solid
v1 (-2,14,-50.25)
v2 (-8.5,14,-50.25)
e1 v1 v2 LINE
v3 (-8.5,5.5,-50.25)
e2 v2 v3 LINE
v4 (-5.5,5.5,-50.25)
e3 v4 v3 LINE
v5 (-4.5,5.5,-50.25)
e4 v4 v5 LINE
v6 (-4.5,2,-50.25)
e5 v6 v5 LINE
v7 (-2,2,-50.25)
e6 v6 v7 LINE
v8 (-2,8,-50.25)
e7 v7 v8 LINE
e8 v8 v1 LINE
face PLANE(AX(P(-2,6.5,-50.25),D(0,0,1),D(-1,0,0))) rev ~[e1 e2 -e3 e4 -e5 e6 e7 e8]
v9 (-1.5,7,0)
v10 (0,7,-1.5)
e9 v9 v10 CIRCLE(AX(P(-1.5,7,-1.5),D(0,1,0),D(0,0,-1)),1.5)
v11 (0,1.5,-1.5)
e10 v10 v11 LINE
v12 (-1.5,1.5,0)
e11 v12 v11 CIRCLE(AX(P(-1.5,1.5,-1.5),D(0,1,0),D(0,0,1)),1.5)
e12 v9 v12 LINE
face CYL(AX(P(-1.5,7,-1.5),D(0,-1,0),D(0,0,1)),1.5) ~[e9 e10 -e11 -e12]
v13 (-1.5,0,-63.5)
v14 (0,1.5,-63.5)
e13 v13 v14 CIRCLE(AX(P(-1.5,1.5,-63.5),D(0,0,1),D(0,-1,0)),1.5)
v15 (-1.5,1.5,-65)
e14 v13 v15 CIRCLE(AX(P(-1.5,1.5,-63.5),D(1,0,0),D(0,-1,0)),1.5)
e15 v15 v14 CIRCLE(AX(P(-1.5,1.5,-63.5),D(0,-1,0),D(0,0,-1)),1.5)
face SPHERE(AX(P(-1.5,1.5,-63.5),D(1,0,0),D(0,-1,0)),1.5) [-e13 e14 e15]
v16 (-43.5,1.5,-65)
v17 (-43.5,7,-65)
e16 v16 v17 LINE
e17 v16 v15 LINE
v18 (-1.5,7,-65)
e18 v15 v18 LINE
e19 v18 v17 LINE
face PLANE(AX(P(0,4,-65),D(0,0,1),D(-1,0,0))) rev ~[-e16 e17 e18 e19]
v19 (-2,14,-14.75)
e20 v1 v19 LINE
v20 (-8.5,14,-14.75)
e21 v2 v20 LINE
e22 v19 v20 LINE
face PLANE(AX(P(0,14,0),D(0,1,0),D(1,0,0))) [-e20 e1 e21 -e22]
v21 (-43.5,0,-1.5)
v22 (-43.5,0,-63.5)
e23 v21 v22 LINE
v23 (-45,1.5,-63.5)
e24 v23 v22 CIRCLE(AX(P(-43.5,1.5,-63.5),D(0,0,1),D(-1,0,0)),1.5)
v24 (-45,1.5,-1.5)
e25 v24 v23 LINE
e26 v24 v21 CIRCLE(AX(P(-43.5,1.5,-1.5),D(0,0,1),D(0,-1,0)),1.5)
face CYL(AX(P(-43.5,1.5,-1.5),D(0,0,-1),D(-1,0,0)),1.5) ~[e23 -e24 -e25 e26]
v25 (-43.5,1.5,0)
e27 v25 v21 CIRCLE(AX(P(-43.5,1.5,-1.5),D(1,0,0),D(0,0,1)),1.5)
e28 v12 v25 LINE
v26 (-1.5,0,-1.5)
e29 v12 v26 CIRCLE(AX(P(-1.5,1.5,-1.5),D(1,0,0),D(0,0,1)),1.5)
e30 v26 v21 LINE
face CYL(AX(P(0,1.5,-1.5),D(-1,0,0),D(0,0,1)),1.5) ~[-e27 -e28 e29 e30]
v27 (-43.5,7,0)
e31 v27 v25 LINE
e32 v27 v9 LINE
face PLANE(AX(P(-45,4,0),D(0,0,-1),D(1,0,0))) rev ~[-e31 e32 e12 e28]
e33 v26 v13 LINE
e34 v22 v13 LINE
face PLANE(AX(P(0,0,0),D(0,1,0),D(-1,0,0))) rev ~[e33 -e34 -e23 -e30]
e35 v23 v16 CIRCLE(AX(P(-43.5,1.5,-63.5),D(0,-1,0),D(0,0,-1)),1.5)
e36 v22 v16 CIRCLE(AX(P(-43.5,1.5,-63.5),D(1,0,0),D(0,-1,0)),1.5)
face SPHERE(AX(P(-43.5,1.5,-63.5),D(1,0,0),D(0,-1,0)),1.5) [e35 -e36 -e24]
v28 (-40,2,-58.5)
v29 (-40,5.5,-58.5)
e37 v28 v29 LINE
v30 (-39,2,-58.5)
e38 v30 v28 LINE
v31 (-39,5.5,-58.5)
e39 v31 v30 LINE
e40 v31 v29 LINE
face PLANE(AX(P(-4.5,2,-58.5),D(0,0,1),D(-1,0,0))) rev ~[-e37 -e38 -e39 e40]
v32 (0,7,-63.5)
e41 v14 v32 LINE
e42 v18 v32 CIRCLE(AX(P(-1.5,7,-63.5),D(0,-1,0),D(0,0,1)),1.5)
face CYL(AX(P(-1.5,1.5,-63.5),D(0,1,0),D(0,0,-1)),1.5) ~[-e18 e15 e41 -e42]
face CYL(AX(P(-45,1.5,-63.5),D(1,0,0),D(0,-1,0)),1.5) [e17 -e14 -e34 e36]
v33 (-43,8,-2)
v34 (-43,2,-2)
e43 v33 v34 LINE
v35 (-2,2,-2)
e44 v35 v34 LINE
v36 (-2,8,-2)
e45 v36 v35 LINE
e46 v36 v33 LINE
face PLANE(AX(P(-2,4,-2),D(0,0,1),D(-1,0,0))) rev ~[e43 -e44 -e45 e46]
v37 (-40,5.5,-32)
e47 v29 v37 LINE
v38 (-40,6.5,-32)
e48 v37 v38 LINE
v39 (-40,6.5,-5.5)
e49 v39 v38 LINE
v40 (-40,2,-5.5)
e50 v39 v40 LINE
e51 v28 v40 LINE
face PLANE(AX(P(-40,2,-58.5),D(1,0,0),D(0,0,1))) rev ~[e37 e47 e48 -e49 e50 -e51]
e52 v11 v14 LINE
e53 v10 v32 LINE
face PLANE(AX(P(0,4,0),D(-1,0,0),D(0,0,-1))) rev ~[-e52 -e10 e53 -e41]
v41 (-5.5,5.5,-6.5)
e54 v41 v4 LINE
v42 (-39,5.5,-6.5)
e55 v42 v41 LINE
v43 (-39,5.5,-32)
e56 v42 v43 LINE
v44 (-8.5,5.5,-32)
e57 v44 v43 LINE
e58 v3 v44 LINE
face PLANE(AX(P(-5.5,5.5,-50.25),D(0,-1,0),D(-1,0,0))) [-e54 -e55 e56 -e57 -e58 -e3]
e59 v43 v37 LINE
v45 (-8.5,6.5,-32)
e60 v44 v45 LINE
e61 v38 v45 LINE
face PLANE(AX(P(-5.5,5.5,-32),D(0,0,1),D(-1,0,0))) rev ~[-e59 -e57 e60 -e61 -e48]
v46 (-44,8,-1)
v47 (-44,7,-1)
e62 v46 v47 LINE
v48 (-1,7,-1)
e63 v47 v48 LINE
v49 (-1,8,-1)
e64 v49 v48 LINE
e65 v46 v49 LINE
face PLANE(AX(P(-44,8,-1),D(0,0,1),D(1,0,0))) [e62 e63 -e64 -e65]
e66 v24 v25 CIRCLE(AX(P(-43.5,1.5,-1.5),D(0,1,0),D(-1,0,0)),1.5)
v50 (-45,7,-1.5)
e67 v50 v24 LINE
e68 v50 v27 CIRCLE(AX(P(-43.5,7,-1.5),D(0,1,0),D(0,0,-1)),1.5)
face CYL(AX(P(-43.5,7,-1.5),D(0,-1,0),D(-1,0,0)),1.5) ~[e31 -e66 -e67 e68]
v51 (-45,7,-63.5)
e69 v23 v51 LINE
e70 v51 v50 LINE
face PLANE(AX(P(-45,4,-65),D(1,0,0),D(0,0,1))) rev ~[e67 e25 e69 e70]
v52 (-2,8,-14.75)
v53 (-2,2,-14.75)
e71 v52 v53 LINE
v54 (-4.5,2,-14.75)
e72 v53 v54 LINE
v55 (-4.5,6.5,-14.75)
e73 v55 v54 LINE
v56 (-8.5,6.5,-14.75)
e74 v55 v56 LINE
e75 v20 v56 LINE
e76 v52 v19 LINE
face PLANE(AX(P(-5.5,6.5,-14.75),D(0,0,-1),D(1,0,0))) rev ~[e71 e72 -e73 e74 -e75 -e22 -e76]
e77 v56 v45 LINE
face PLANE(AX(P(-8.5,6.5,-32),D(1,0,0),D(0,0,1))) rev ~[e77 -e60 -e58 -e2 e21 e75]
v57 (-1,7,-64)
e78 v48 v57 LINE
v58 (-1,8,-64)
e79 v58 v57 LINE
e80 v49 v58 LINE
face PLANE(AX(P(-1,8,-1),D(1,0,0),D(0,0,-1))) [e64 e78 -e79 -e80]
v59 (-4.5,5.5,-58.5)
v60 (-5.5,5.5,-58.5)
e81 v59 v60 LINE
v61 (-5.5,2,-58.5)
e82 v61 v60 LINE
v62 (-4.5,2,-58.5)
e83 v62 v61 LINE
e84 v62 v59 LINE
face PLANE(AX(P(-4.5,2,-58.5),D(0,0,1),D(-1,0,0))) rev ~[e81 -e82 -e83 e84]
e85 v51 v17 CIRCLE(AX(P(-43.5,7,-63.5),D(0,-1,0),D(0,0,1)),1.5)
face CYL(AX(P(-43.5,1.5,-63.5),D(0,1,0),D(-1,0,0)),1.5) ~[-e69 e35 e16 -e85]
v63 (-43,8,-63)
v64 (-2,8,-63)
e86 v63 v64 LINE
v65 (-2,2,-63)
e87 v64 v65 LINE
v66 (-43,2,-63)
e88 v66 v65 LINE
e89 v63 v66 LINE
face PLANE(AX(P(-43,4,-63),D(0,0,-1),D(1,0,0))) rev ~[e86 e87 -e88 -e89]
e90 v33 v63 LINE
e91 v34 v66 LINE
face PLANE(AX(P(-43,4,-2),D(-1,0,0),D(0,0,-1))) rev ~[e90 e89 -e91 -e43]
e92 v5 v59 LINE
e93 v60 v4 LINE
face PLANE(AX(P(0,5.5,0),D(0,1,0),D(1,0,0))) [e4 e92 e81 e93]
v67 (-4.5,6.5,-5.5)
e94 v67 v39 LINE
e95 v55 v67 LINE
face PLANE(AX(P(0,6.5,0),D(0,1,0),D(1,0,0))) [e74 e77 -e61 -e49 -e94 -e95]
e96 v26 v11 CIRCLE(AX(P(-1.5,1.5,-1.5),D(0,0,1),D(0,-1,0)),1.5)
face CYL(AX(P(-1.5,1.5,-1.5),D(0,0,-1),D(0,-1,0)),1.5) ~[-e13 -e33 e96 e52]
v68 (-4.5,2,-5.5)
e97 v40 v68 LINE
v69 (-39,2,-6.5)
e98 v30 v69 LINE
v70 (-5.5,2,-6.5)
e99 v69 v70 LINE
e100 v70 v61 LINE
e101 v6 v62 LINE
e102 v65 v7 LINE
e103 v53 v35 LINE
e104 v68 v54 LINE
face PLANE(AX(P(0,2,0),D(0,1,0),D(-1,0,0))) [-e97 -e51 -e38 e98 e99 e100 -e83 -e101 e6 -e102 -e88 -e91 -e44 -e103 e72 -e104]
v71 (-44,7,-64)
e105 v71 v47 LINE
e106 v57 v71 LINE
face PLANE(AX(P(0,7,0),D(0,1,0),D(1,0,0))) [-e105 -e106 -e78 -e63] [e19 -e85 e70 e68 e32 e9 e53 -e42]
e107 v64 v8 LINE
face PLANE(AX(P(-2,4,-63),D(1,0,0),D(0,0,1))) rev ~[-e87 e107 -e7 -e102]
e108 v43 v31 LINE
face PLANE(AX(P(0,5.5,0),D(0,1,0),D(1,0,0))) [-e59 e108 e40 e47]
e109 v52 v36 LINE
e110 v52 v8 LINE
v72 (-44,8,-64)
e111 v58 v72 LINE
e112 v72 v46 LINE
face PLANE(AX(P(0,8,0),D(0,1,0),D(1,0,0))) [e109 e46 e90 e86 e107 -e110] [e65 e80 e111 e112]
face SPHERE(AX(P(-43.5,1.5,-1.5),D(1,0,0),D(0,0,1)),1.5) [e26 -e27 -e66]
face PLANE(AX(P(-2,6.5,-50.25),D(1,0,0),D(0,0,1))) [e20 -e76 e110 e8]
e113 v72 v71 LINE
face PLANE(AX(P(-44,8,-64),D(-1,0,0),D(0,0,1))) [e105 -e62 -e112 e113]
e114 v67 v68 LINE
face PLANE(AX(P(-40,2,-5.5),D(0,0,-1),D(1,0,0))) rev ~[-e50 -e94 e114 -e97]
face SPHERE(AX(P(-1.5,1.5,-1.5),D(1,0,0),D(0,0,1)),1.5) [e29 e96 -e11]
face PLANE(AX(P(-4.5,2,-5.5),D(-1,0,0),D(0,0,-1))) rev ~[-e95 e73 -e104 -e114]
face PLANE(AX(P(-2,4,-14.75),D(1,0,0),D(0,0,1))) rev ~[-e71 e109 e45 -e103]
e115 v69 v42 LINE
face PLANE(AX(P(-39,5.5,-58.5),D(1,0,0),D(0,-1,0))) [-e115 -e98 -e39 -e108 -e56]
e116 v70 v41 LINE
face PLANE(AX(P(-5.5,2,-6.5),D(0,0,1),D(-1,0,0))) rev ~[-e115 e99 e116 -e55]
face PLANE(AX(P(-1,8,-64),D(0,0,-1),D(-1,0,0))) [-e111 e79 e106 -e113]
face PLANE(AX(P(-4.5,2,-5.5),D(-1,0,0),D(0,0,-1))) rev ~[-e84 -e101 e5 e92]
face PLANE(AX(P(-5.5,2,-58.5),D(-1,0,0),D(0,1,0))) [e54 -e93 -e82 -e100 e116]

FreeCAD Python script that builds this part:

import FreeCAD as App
import Part
import Sketcher

V = App.Vector
Q = App.Units.Quantity


def edges_at(feature, points):
    """Names of the edges that pass closest to the given points."""
    edges = feature.Shape.Edges
    near = lambda p: min(range(len(edges)), key=lambda i: edges[i].distToShape(Part.Vertex(*p))[0])
    return sorted({f"Edge{near(p) + 1}" for p in points})

doc = App.newDocument("Part")
params = doc.addObject("Spreadsheet::Sheet", "Params")
for row, (alias, value) in enumerate([
    ("sketch1_width", "45 mm"),
    ("sketch1_height", "65 mm"),
    ("pad1_length", "2 mm"),
    ("sketch2_width", "45 mm"),
    ("sketch2_height", "65 mm"),
    ("pad2_length", "2 mm"),
    ("sketch3_height", "51 mm"),
    ("sketch3_width", "33.5 mm"),
    ("pad3_length", "3.5 mm"),
    ("sketch4_width", "33.5 mm"),
    ("sketch4_height", "3.5 mm"),
    ("pocket1_length", "2 mm"),
    ("sketch5_width", "35.5 mm"),
    ("sketch5_height", "26.5 mm"),
    ("pad4_length", "1 mm"),
    ("fillet_radius", "1.5 mm"),
    ("fillet2_radius", "1.5 mm"),
    ("sketch6_width", "6.5 mm"),
    ("sketch6_height", "35.5 mm"),
    ("pad5_length", "15 mm"),
    ("sketch7_width", "1 mm"),
    ("sketch7_height", "35.5 mm"),
    ("sketch8_width", "3 mm"),
    ("sketch8_height", "3.5 mm"),
    ("pocket3_length", "43.75 mm"),
    ("sketch9_width", "45 mm"),
    ("sketch9_width2", "41 mm"),
    ("sketch9_height", "65 mm"),
    ("sketch9_height2", "61 mm"),
    ("pad6_length", "4 mm"),
    ("sketch10_width", "45 mm"),
    ("sketch10_height", "65 mm"),
    ("pocket4_length", "1 mm"),
    ("fillet3_radius", "1.5 mm"),
    ("fillet4_radius", "1.5 mm"),
], start=1):
    params.set(f"A{row}", alias)
    params.set(f"B{row}", "=" + value)
    params.setAlias(f"B{row}", alias)

body = doc.addObject("PartDesign::Body", "Body")

sketch1 = body.newObject("Sketcher::SketchObject", "Sketch")
sketch1.AttachmentSupport = (doc.getObject("XZ_Plane"), [""])
sketch1.MapMode = "FlatFace"
sketch1.addGeometry([
    Part.LineSegment(V(-45, 0, 0), V(0, 0, 0)),
    Part.LineSegment(V(0, 0, 0), V(0, -65, 0)),
    Part.LineSegment(V(0, -65, 0), V(-45, -65, 0)),
    Part.LineSegment(V(-45, -65, 0), V(-45, 0, 0)),
], False)
sketch1.addConstraint([
    Sketcher.Constraint("Coincident", 0, 2, 1, 1),
    Sketcher.Constraint("Coincident", 1, 2, 2, 1),
    Sketcher.Constraint("Coincident", 2, 2, 3, 1),
    Sketcher.Constraint("Coincident", 3, 2, 0, 1),
    Sketcher.Constraint("Horizontal", 0),
    Sketcher.Constraint("Vertical", 1),
    Sketcher.Constraint("Horizontal", 2),
    Sketcher.Constraint("Vertical", 3),
    Sketcher.Constraint("Coincident", 0, 2, -1, 1),
    Sketcher.Constraint("DistanceX", 0, 1, 0, 2, Q("45 mm")),
    Sketcher.Constraint("DistanceY", 1, 2, 1, 1, Q("65 mm")),
])
sketch1.setExpression("Constraints[9]", "Params.sketch1_width")
sketch1.setExpression("Constraints[10]", "Params.sketch1_height")
pad1 = body.newObject("PartDesign::Pad", "Pad")
pad1.Profile = sketch1
pad1.setExpression("Length", "Params.pad1_length")
pad1.Reversed = True

sketch2 = body.newObject("Sketcher::SketchObject", "Sketch001")
sketch2.AttachmentSupport = (doc.getObject("XZ_Plane"), [""])
sketch2.MapMode = "FlatFace"
sketch2.AttachmentOffset = App.Placement(V(0, 0, -2), App.Rotation())
sketch2.addGeometry([
    Part.LineSegment(V(0, 0, 0), V(0, -65, 0)),
    Part.LineSegment(V(0, -65, 0), V(-45, -65, 0)),
    Part.LineSegment(V(-45, -65, 0), V(-45, 0, 0)),
    Part.LineSegment(V(-45, 0, 0), V(0, 0, 0)),
    Part.LineSegment(V(-2, -63, 0), V(-2, -2, 0)),
    Part.LineSegment(V(-2, -2, 0), V(-43, -2, 0)),
    Part.LineSegment(V(-43, -2, 0), V(-43, -63, 0)),
    Part.LineSegment(V(-43, -63, 0), V(-2, -63, 0)),
], False)
sketch2.addConstraint([
    Sketcher.Constraint("Coincident", 0, 2, 1, 1),
    Sketcher.Constraint("Coincident", 1, 2, 2, 1),
    Sketcher.Constraint("Coincident", 2, 2, 3, 1),
    Sketcher.Constraint("Coincident", 3, 2, 0, 1),
    Sketcher.Constraint("Coincident", 4, 2, 5, 1),
    Sketcher.Constraint("Coincident", 5, 2, 6, 1),
    Sketcher.Constraint("Coincident", 6, 2, 7, 1),
    Sketcher.Constraint("Coincident", 7, 2, 4, 1),
    Sketcher.Constraint("Vertical", 0),
    Sketcher.Constraint("Horizontal", 1),
    Sketcher.Constraint("Vertical", 2),
    Sketcher.Constraint("Horizontal", 3),
    Sketcher.Constraint("Vertical", 4),
    Sketcher.Constraint("Horizontal", 5),
    Sketcher.Constraint("Vertical", 6),
    Sketcher.Constraint("Horizontal", 7),
    Sketcher.Constraint("Coincident", 3, 2, -1, 1),
    Sketcher.Constraint("DistanceX", 4, 2, -1, 1, Q("2 mm")),
    Sketcher.Constraint("DistanceY", 4, 2, -1, 1, Q("2 mm")),
    Sketcher.Constraint("DistanceX", 2, 2, 5, 2, Q("2 mm")),
    Sketcher.Constraint("DistanceY", 1, 2, 6, 2, Q("2 mm")),
    Sketcher.Constraint("DistanceX", 1, 2, 1, 1, Q("45 mm")),
    Sketcher.Constraint("DistanceY", 0, 2, 0, 1, Q("65 mm")),
])
sketch2.setExpression("Constraints[21]", "Params.sketch2_width")
sketch2.setExpression("Constraints[22]", "Params.sketch2_height")
pad2 = body.newObject("PartDesign::Pad", "Pad001")
pad2.Profile = sketch2
pad2.setExpression("Length", "Params.pad2_length")
pad2.Reversed = True

sketch3 = body.newObject("Sketcher::SketchObject", "Sketch002")
sketch3.AttachmentSupport = (doc.getObject("XZ_Plane"), [""])
sketch3.MapMode = "FlatFace"
sketch3.AttachmentOffset = App.Placement(V(0, 0, -2), App.Rotation())
sketch3.addGeometry([
    Part.LineSegment(V(-4, -6, 0), V(-4, -58, 0)),
    Part.LineSegment(V(-4, -58, 0), V(-40, -58, 0)),
    Part.LineSegment(V(-40, -58, 0), V(-40, -6, 0)),
    Part.LineSegment(V(-40, -6, 0), V(-4, -6, 0)),
    Part.LineSegment(V(-6, -58, 0), V(-6, -6, 0)),
    Part.LineSegment(V(-6, -6, 0), V(-39, -6, 0)),
    Part.LineSegment(V(-39, -6, 0), V(-39, -58, 0)),
    Part.LineSegment(V(-39, -58, 0), V(-6, -58, 0)),
], False)
sketch3.addConstraint([
    Sketcher.Constraint("Coincident", 0, 2, 1, 1),
    Sketcher.Constraint("Coincident", 1, 2, 2, 1),
    Sketcher.Constraint("Coincident", 2, 2, 3, 1),
    Sketcher.Constraint("Coincident", 3, 2, 0, 1),
    Sketcher.Constraint("Coincident", 4, 2, 5, 1),
    Sketcher.Constraint("Coincident", 5, 2, 6, 1),
    Sketcher.Constraint("Coincident", 6, 2, 7, 1),
    Sketcher.Constraint("Coincident", 7, 2, 4, 1),
    Sketcher.Constraint("Vertical", 0),
    Sketcher.Constraint("Horizontal", 1),
    Sketcher.Constraint("Vertical", 2),
    Sketcher.Constraint("Horizontal", 3),
    Sketcher.Constraint("Vertical", 4),
    Sketcher.Constraint("Horizontal", 5),
    Sketcher.Constraint("Vertical", 6),
    Sketcher.Constraint("Horizontal", 7),
    Sketcher.Constraint("DistanceY", 4, 1, 4, 2, Q("51 mm")),
    Sketcher.Constraint("DistanceX", 5, 2, 5, 1, Q("33.5 mm")),
    Sketcher.Constraint("DistanceX", 4, 2, 3, 2, Q("1 mm")),
    Sketcher.Constraint("DistanceY", 4, 2, 3, 2, Q("1 mm")),
    Sketcher.Constraint("DistanceX", 2, 2, 5, 2, Q("1 mm")),
    Sketcher.Constraint("DistanceY", 1, 2, 6, 2, Q("1 mm")),
    Sketcher.Constraint("DistanceX", 1, 2, -1, 1, Q("40 mm")),
    Sketcher.Constraint("DistanceY", 0, 2, -1, 1, Q("58.5 mm")),
])
sketch3.setExpression("Constraints[16]", "Params.sketch3_height")
sketch3.setExpression("Constraints[17]", "Params.sketch3_width")
pad3 = body.newObject("PartDesign::Pad", "Pad002")
pad3.Profile = sketch3
pad3.setExpression("Length", "Params.pad3_length")
pad3.Reversed = True

sketch4 = body.newObject("Sketcher::SketchObject", "Sketch003")
sketch4.AttachmentSupport = (doc.getObject("XY_Plane"), [""])
sketch4.MapMode = "FlatFace"
sketch4.AttachmentOffset = App.Placement(V(0, 0, -58.5), App.Rotation())
sketch4.addGeometry([
    Part.LineSegment(V(-5.5, 2, 0), V(-39, 2, 0)),
    Part.LineSegment(V(-39, 2, 0), V(-39, 5.5, 0)),
    Part.LineSegment(V(-39, 5.5, 0), V(-5.5, 5.5, 0)),
    Part.LineSegment(V(-5.5, 5.5, 0), V(-5.5, 2, 0)),
], False)
sketch4.addConstraint([
    Sketcher.Constraint("Coincident", 0, 2, 1, 1),
    Sketcher.Constraint("Coincident", 1, 2, 2, 1),
    Sketcher.Constraint("Coincident", 2, 2, 3, 1),
    Sketcher.Constraint("Coincident", 3, 2, 0, 1),
    Sketcher.Constraint("Horizontal", 0),
    Sketcher.Constraint("Vertical", 1),
    Sketcher.Constraint("Horizontal", 2),
    Sketcher.Constraint("Vertical", 3),
    Sketcher.Constraint("DistanceX", 0, 2, 0, 1, Q("33.5 mm")),
    Sketcher.Constraint("DistanceY", 1, 1, 1, 2, Q("3.5 mm")),
    Sketcher.Constraint("DistanceX", 0, 2, -1, 1, Q("39 mm")),
    Sketcher.Constraint("DistanceY", -1, 1, 0, 2, Q("2 mm")),
])
sketch4.setExpression("Constraints[8]", "Params.sketch4_width")
sketch4.setExpression("Constraints[9]", "Params.sketch4_height")
pocket1 = body.newObject("PartDesign::Pocket", "Pocket")
pocket1.Profile = sketch4
pocket1.setExpression("Length", "Params.pocket1_length")
pocket1.Reversed = True

sketch5 = body.newObject("Sketcher::SketchObject", "Sketch004")
sketch5.AttachmentSupport = (doc.getObject("XZ_Plane"), [""])
sketch5.MapMode = "FlatFace"
sketch5.AttachmentOffset = App.Placement(V(0, 0, -5.5), App.Rotation())
sketch5.addGeometry([
    Part.LineSegment(V(-40, -32, 0), V(-40, -6, 0)),
    Part.LineSegment(V(-40, -6, 0), V(-4, -6, 0)),
    Part.LineSegment(V(-4, -6, 0), V(-4, -32, 0)),
    Part.LineSegment(V(-4, -32, 0), V(-40, -32, 0)),
], False)
sketch5.addConstraint([
    Sketcher.Constraint("Coincident", 0, 2, 1, 1),
    Sketcher.Constraint("Coincident", 1, 2, 2, 1),
    Sketcher.Constraint("Coincident", 2, 2, 3, 1),
    Sketcher.Constraint("Coincident", 3, 2, 0, 1),
    Sketcher.Constraint("Vertical", 0),
    Sketcher.Constraint("Horizontal", 1),
    Sketcher.Constraint("Vertical", 2),
    Sketcher.Constraint("Horizontal", 3),
    Sketcher.Constraint("DistanceX", 1, 1, 1, 2, Q("35.5 mm")),
    Sketcher.Constraint("DistanceY", 0, 1, 0, 2, Q("26.5 mm")),
    Sketcher.Constraint("DistanceX", 0, 2, -1, 1, Q("40 mm")),
    Sketcher.Constraint("DistanceY", 2, 2, -1, 1, Q("32 mm")),
])
sketch5.setExpression("Constraints[8]", "Params.sketch5_width")
sketch5.setExpression("Constraints[9]", "Params.sketch5_height")
pad4 = body.newObject("PartDesign::Pad", "Pad003")
pad4.Profile = sketch5
pad4.setExpression("Length", "Params.pad4_length")
pad4.Reversed = True
doc.recompute()

fillet = body.newObject("PartDesign::Fillet", "Fillet")
fillet.Base = (pad4, edges_at(pad4, [(-22.5, 0, 0)]))
fillet.setExpression("Radius", "Params.fillet_radius")
doc.recompute()

fillet2 = body.newObject("PartDesign::Fillet", "Fillet001")
fillet2.Base = (fillet, edges_at(fillet, [(-22.5, 0, -65)]))
fillet2.setExpression("Radius", "Params.fillet2_radius")

sketch6 = body.newObject("Sketcher::SketchObject", "Sketch005")
sketch6.AttachmentSupport = (doc.getObject("XZ_Plane"), [""])
sketch6.MapMode = "FlatFace"
sketch6.AttachmentOffset = App.Placement(V(0, 0, -6.5), App.Rotation())
sketch6.addGeometry([
    Part.LineSegment(V(-2, -15, 0), V(-2, -50, 0)),
    Part.LineSegment(V(-2, -50, 0), V(-8, -50, 0)),
    Part.LineSegment(V(-8, -50, 0), V(-8, -15, 0)),
    Part.LineSegment(V(-8, -15, 0), V(-2, -15, 0)),
], False)
sketch6.addConstraint([
    Sketcher.Constraint("Coincident", 0, 2, 1, 1),
    Sketcher.Constraint("Coincident", 1, 2, 2, 1),
    Sketcher.Constraint("Coincident", 2, 2, 3, 1),
    Sketcher.Constraint("Coincident", 3, 2, 0, 1),
    Sketcher.Constraint("Vertical", 0),
    Sketcher.Constraint("Horizontal", 1),
    Sketcher.Constraint("Vertical", 2),
    Sketcher.Constraint("Horizontal", 3),
    Sketcher.Constraint("DistanceX", 1, 2, 1, 1, Q("6.5 mm")),
    Sketcher.Constraint("DistanceY", 0, 2, 0, 1, Q("35.5 mm")),
    Sketcher.Constraint("DistanceX", 0, 2, -1, 1, Q("2 mm")),
    Sketcher.Constraint("DistanceY", 0, 2, -1, 1, Q("50.25 mm")),
])
sketch6.setExpression("Constraints[8]", "Params.sketch6_width")
sketch6.setExpression("Constraints[9]", "Params.sketch6_height")
pad5 = body.newObject("PartDesign::Pad", "Pad004")
pad5.Profile = sketch6
pad5.setExpression("Length", "Params.pad5_length")
pad5.Midplane = True

sketch7 = body.newObject("Sketcher::SketchObject", "Sketch006")
sketch7.AttachmentSupport = (doc.getObject("YZ_Plane"), [""])
sketch7.MapMode = "FlatFace"
sketch7.AttachmentOffset = App.Placement(V(0, 0, -2), App.Rotation())
sketch7.addGeometry([
    Part.LineSegment(V(0, -14.8, 0), V(-1, -14.8, 0)),
    Part.LineSegment(V(-1, -14.8, 0), V(-1, -50.2, 0)),
    Part.LineSegment(V(-1, -50.2, 0), V(0, -50.2, 0)),
    Part.LineSegment(V(0, -50.2, 0), V(0, -14.8, 0)),
], False)
sketch7.addConstraint([
    Sketcher.Constraint("Coincident", 0, 2, 1, 1),
    Sketcher.Constraint("Coincident", 1, 2, 2, 1),
    Sketcher.Constraint("Coincident", 2, 2, 3, 1),
    Sketcher.Constraint("Coincident", 3, 2, 0, 1),
    Sketcher.Constraint("Horizontal", 0),
    Sketcher.Constraint("Vertical", 1),
    Sketcher.Constraint("Horizontal", 2),
    Sketcher.Constraint("Vertical", 3),
    Sketcher.Constraint("PointOnObject", 2, 2, -2),
    Sketcher.Constraint("DistanceX", 0, 2, 0, 1, Q("1 mm")),
    Sketcher.Constraint("DistanceY", 1, 2, 1, 1, Q("35.5 mm")),
    Sketcher.Constraint("DistanceY", 0, 2, -1, 1, Q("14.75 mm")),
])
sketch7.setExpression("Constraints[9]", "Params.sketch7_width")
sketch7.setExpression("Constraints[10]", "Params.sketch7_height")
pocket2 = body.newObject("PartDesign::Pocket", "Pocket001")
pocket2.Profile = sketch7
pocket2.Type = "ThroughAll"

sketch8 = body.newObject("Sketcher::SketchObject", "Sketch007")
sketch8.AttachmentSupport = (doc.getObject("XY_Plane"), [""])
sketch8.MapMode = "FlatFace"
sketch8.AttachmentOffset = App.Placement(V(0, 0, -50.25), App.Rotation())
sketch8.addGeometry([
    Part.LineSegment(V(-5.5, 5.5, 0), V(-5.5, 2, 0)),
    Part.LineSegment(V(-5.5, 2, 0), V(-8.5, 2, 0)),
    Part.LineSegment(V(-8.5, 2, 0), V(-8.5, 5.5, 0)),
    Part.LineSegment(V(-8.5, 5.5, 0), V(-5.5, 5.5, 0)),
], False)
sketch8.addConstraint([
    Sketcher.Constraint("Coincident", 0, 2, 1, 1),
    Sketcher.Constraint("Coincident", 1, 2, 2, 1),
    Sketcher.Constraint("Coincident", 2, 2, 3, 1),
    Sketcher.Constraint("Coincident", 3, 2, 0, 1),
    Sketcher.Constraint("Vertical", 0),
    Sketcher.Constraint("Horizontal", 1),
    Sketcher.Constraint("Vertical", 2),
    Sketcher.Constraint("Horizontal", 3),
    Sketcher.Constraint("DistanceX", 1, 2, 1, 1, Q("3 mm")),
    Sketcher.Constraint("DistanceY", 0, 2, 0, 1, Q("3.5 mm")),
    Sketcher.Constraint("DistanceY", -1, 1, 0, 2, Q("2 mm")),
    Sketcher.Constraint("DistanceX", 0, 2, -1, 1, Q("5.5 mm")),
])
sketch8.setExpression("Constraints[8]", "Params.sketch8_width")
sketch8.setExpression("Constraints[9]", "Params.sketch8_height")
pocket3 = body.newObject("PartDesign::Pocket", "Pocket002")
pocket3.Profile = sketch8
pocket3.setExpression("Length", "Params.pocket3_length")
pocket3.Reversed = True

sketch9 = body.newObject("Sketcher::SketchObject", "Sketch008")
sketch9.AttachmentSupport = (doc.getObject("XZ_Plane"), [""])
sketch9.MapMode = "FlatFace"
sketch9.AttachmentOffset = App.Placement(V(0, 0, -4), App.Rotation())
sketch9.addGeometry([
    Part.LineSegment(V(-45, -65, 0), V(-45, 0, 0)),
    Part.LineSegment(V(-45, 0, 0), V(0, 0, 0)),
    Part.LineSegment(V(0, 0, 0), V(0, -65, 0)),
    Part.LineSegment(V(0, -65, 0), V(-45, -65, 0)),
    Part.LineSegment(V(-2, -63, 0), V(-2, -2, 0)),
    Part.LineSegment(V(-2, -2, 0), V(-43, -2, 0)),
    Part.LineSegment(V(-43, -2, 0), V(-43, -63, 0)),
    Part.LineSegment(V(-43, -63, 0), V(-2, -63, 0)),
], False)
sketch9.addConstraint([
    Sketcher.Constraint("Coincident", 0, 2, 1, 1),
    Sketcher.Constraint("Coincident", 1, 2, 2, 1),
    Sketcher.Constraint("Coincident", 2, 2, 3, 1),
    Sketcher.Constraint("Coincident", 3, 2, 0, 1),
    Sketcher.Constraint("Coincident", 4, 2, 5, 1),
    Sketcher.Constraint("Coincident", 5, 2, 6, 1),
    Sketcher.Constraint("Coincident", 6, 2, 7, 1),
    Sketcher.Constraint("Coincident", 7, 2, 4, 1),
    Sketcher.Constraint("Vertical", 0),
    Sketcher.Constraint("Horizontal", 1),
    Sketcher.Constraint("Vertical", 2),
    Sketcher.Constraint("Horizontal", 3),
    Sketcher.Constraint("Vertical", 4),
    Sketcher.Constraint("Horizontal", 5),
    Sketcher.Constraint("Vertical", 6),
    Sketcher.Constraint("Horizontal", 7),
    Sketcher.Constraint("Coincident", 1, 2, -1, 1),
    Sketcher.Constraint("DistanceX", 1, 1, 1, 2, Q("45 mm")),
    Sketcher.Constraint("DistanceX", 5, 2, 5, 1, Q("41 mm")),
    Sketcher.Constraint("DistanceY", 0, 1, 0, 2, Q("65 mm")),
    Sketcher.Constraint("DistanceY", 4, 1, 4, 2, Q("61 mm")),
    Sketcher.Constraint("DistanceX", 4, 2, -1, 1, Q("2 mm")),
    Sketcher.Constraint("DistanceY", 4, 2, -1, 1, Q("2 mm")),
])
sketch9.setExpression("Constraints[17]", "Params.sketch9_width")
sketch9.setExpression("Constraints[18]", "Params.sketch9_width2")
sketch9.setExpression("Constraints[19]", "Params.sketch9_height")
sketch9.setExpression("Constraints[20]", "Params.sketch9_height2")
pad6 = body.newObject("PartDesign::Pad", "Pad005")
pad6.Profile = sketch9
pad6.setExpression("Length", "Params.pad6_length")
pad6.Reversed = True

sketch10 = body.newObject("Sketcher::SketchObject", "Sketch009")
sketch10.AttachmentSupport = (doc.getObject("XZ_Plane"), [""])
sketch10.MapMode = "FlatFace"
sketch10.AttachmentOffset = App.Placement(V(0, 0, -8), App.Rotation())
sketch10.addGeometry([
    Part.LineSegment(V(-45, 0, 0), V(0, 0, 0)),
    Part.LineSegment(V(0, 0, 0), V(0, -65, 0)),
    Part.LineSegment(V(0, -65, 0), V(-45, -65, 0)),
    Part.LineSegment(V(-45, -65, 0), V(-45, 0, 0)),
    Part.LineSegment(V(-44, -64, 0), V(-1, -64, 0)),
    Part.LineSegment(V(-1, -64, 0), V(-1, -1, 0)),
    Part.LineSegment(V(-1, -1, 0), V(-44, -1, 0)),
    Part.LineSegment(V(-44, -1, 0), V(-44, -64, 0)),
], False)
sketch10.addConstraint([
    Sketcher.Constraint("Coincident", 0, 2, 1, 1),
    Sketcher.Constraint("Coincident", 1, 2, 2, 1),
    Sketcher.Constraint("Coincident", 2, 2, 3, 1),
    Sketcher.Constraint("Coincident", 3, 2, 0, 1),
    Sketcher.Constraint("Coincident", 4, 2, 5, 1),
    Sketcher.Constraint("Coincident", 5, 2, 6, 1),
    Sketcher.Constraint("Coincident", 6, 2, 7, 1),
    Sketcher.Constraint("Coincident", 7, 2, 4, 1),
    Sketcher.Constraint("Horizontal", 0),
    Sketcher.Constraint("Vertical", 1),
    Sketcher.Constraint("Horizontal", 2),
    Sketcher.Constraint("Vertical", 3),
    Sketcher.Constraint("Horizontal", 4),
    Sketcher.Constraint("Vertical", 5),
    Sketcher.Constraint("Horizontal", 6),
    Sketcher.Constraint("Vertical", 7),
    Sketcher.Constraint("Coincident", 0, 2, -1, 1),
    Sketcher.Constraint("DistanceX", 4, 2, -1, 1, Q("1 mm")),
    Sketcher.Constraint("DistanceY", 5, 2, -1, 1, Q("1 mm")),
    Sketcher.Constraint("DistanceY", 1, 2, 4, 2, Q("1 mm")),
    Sketcher.Constraint("DistanceX", 3, 2, 6, 2, Q("1 mm")),
    Sketcher.Constraint("DistanceX", 0, 1, 0, 2, Q("45 mm")),
    Sketcher.Constraint("DistanceY", 1, 2, 1, 1, Q("65 mm")),
])
sketch10.setExpression("Constraints[21]", "Params.sketch10_width")
sketch10.setExpression("Constraints[22]", "Params.sketch10_height")
pocket4 = body.newObject("PartDesign::Pocket", "Pocket003")
pocket4.Profile = sketch10
pocket4.setExpression("Length", "Params.pocket4_length")
pocket4.Reversed = True
doc.recompute()

fillet3 = body.newObject("PartDesign::Fillet", "Fillet002")
fillet3.Base = (pocket4, edges_at(pocket4, [
    (0, 0.439, -0.439),
    (0, 0, -32.5),
    (0, 0.439, -64.561),
    (0, 4.25, -65),
    (0, 4.25, 0),
]))
fillet3.setExpression("Radius", "Params.fillet3_radius")
doc.recompute()

fillet4 = body.newObject("PartDesign::Fillet", "Fillet003")
fillet4.Base = (fillet3, edges_at(fillet3, [
    (-45, 0.439, -0.439),
    (-45, 4.25, 0),
    (-45, 0.439, -64.561),
    (-45, 4.25, -65),
    (-45, 0, -32.5),
]))
fillet4.setExpression("Radius", "Params.fillet4_radius")

doc.recompute()
